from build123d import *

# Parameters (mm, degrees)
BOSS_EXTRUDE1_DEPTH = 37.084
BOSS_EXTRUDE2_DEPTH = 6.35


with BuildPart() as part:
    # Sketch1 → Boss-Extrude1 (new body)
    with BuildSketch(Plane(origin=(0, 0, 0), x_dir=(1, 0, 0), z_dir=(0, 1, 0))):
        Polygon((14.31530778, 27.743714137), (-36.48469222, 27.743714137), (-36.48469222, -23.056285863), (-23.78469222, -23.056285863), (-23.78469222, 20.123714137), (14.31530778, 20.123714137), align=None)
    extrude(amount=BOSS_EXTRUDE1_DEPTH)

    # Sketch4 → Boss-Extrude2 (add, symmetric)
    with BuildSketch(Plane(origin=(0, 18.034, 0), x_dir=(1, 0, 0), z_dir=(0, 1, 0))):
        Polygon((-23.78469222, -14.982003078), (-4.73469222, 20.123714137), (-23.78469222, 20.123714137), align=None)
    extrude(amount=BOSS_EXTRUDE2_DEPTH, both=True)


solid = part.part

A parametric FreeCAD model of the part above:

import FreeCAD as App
import Part
import Sketcher
from FreeCAD import Vector
Q = App.Units.Quantity


def add_polygon(sketch, points):
    """Adds a closed chain of lines whose ends are joined by coincident constraints."""
    first, n = sketch.GeometryCount, len(points)
    for a, b in zip(points, points[1:] + points[:1]):
        sketch.addGeometry(Part.LineSegment(App.Vector(*a, 0), App.Vector(*b, 0)), False)
    for i in range(n):
        sketch.addConstraint(Sketcher.Constraint("Coincident", first + i, 2, first + (i + 1) % n, 1))

doc = App.newDocument("Part")
body = doc.addObject("PartDesign::Body", "Body")

sketch1 = body.newObject("Sketcher::SketchObject", "Sketch")
sketch1.AttachmentSupport = (doc.getObject("XZ_Plane"), [""])
sketch1.MapMode = "FlatFace"
add_polygon(sketch1, [(14.315308, -27.743714), (-36.484692, -27.743714), (-36.484692, 23.056286), (-23.784692, 23.056286), (-23.784692, -20.123714), (14.315308, -20.123714)])
sketch1.addConstraint(Sketcher.Constraint("Horizontal", 0))
sketch1.addConstraint(Sketcher.Constraint("Vertical", 1))
sketch1.addConstraint(Sketcher.Constraint("Horizontal", 2))
sketch1.addConstraint(Sketcher.Constraint("Vertical", 3))
sketch1.addConstraint(Sketcher.Constraint("Horizontal", 4))
sketch1.addConstraint(Sketcher.Constraint("Vertical", 5))
sketch1.addConstraint(Sketcher.Constraint("Equal", 0, 1))
sketch1.addConstraint(Sketcher.Constraint("DistanceX", 0, 2, 0, 1, Q("2 in")))
sketch1.addConstraint(Sketcher.Constraint("DistanceX", 2, 1, 2, 2, Q("0.5 in")))
sketch1.addConstraint(Sketcher.Constraint("DistanceY", 3, 2, 3, 1, Q("1.7 in")))
sketch1.addConstraint(Sketcher.Constraint("DistanceX", 0, 2, -1, 1, 36.484692))
sketch1.addConstraint(Sketcher.Constraint("DistanceY", 0, 2, -1, 1, 27.743714))
pad1 = body.newObject("PartDesign::Pad", "Pad")
pad1.Profile = sketch1
pad1.Length = Q("1.46 in")
pad1.Reversed = True

sketch2 = body.newObject("Sketcher::SketchObject", "Sketch001")
sketch2.AttachmentSupport = (doc.getObject("XZ_Plane"), [""])
sketch2.MapMode = "FlatFace"
sketch2.AttachmentOffset = App.Placement(Vector(0, 0, -0.71 * 25.4), App.Rotation())
add_polygon(sketch2, [(-23.784692, 14.982003), (-4.734692, -20.123714), (-23.784692, -20.123714)])
sketch2.addConstraint(Sketcher.Constraint("Horizontal", 1))
sketch2.addConstraint(Sketcher.Constraint("Vertical", 2))
sketch2.addConstraint(Sketcher.Constraint("DistanceX", 1, 2, 1, 1, Q("0.75 in")))
sketch2.addConstraint(Sketcher.Constraint("Distance", 0, 39.941381))
sketch2.addConstraint(Sketcher.Constraint("DistanceX", 0, 2, -1, 1, 4.734692))
sketch2.addConstraint(Sketcher.Constraint("DistanceY", 0, 2, -1, 1, 20.123714))
pad2 = body.newObject("PartDesign::Pad", "Pad001")
pad2.Profile = sketch2
pad2.Length = Q("0.5 in")
pad2.Midplane = True

doc.recompute()
